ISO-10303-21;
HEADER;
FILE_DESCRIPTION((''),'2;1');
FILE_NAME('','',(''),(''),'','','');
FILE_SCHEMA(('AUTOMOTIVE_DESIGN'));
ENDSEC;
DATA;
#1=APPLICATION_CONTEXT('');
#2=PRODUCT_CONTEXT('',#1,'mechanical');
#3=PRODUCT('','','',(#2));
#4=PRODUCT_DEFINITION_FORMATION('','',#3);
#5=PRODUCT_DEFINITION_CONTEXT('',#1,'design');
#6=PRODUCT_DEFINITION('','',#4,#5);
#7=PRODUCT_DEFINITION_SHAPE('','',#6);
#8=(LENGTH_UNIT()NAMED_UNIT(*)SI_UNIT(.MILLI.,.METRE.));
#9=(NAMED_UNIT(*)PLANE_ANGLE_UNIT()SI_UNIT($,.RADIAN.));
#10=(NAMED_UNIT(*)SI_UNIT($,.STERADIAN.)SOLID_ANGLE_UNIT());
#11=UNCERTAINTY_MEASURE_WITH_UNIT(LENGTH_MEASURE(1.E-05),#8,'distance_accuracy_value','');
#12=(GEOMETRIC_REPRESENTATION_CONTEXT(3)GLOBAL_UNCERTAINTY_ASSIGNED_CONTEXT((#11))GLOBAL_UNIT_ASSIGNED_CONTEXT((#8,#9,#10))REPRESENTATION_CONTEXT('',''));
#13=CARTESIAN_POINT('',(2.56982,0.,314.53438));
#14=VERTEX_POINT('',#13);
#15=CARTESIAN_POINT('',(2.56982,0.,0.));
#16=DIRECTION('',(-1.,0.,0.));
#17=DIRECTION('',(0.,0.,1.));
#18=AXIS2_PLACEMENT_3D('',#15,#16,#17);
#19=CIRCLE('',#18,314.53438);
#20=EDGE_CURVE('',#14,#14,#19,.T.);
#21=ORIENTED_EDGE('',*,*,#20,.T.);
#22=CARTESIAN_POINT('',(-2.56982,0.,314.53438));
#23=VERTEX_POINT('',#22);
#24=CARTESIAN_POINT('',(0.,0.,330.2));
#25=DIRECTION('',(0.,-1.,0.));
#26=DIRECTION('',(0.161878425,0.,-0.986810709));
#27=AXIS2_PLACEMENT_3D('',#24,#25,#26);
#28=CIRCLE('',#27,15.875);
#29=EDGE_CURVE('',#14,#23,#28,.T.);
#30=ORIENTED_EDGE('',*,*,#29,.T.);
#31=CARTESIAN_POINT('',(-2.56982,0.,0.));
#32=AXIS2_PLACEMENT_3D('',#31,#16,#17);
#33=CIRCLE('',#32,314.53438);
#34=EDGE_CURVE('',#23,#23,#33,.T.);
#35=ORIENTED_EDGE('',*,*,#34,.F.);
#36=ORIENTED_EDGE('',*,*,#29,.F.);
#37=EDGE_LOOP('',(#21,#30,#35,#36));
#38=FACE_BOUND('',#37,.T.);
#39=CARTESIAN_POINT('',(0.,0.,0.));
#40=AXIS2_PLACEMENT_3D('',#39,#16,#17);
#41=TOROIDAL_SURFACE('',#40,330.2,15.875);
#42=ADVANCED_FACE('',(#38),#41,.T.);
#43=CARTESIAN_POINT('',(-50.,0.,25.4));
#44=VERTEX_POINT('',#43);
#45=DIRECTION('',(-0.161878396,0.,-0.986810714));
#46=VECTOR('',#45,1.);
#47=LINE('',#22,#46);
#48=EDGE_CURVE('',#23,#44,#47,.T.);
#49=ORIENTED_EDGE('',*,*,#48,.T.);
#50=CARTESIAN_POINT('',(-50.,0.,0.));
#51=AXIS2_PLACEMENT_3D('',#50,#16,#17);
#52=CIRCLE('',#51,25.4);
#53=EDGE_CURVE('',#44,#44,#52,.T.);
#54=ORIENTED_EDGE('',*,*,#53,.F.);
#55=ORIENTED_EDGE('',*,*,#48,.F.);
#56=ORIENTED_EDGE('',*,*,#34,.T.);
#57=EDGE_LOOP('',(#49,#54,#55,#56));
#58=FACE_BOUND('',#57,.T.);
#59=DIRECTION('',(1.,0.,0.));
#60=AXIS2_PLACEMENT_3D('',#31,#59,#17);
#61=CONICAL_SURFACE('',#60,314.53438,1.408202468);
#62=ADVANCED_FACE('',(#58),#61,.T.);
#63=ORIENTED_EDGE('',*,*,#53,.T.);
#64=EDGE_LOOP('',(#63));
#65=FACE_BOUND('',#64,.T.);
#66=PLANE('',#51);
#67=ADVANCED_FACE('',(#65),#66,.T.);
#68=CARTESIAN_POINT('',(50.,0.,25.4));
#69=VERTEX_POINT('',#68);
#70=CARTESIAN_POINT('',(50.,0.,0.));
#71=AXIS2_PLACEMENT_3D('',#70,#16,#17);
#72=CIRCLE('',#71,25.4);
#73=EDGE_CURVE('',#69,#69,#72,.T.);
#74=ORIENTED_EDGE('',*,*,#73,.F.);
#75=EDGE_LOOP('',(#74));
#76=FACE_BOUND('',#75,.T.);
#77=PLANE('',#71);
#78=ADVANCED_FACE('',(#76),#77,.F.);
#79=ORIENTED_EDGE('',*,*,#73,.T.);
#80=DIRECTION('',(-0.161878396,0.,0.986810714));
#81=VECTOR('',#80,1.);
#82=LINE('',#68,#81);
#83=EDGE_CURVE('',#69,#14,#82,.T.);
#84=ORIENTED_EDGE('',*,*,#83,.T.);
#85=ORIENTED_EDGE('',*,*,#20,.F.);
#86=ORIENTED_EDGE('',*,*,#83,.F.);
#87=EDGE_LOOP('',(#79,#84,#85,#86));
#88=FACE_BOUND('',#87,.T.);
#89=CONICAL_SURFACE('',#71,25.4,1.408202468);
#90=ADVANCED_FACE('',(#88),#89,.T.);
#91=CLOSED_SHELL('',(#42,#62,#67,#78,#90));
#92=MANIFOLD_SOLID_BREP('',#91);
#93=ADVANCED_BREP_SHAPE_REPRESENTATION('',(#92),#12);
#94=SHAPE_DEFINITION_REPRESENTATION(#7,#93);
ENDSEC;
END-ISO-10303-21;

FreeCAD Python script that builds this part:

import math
import FreeCAD as App
import Part
import Sketcher

V = App.Vector
Q = App.Units.Quantity

doc = App.newDocument("Part")
params = doc.addObject("Spreadsheet::Sheet", "Params")
for row, (alias, value) in enumerate([
    ("sketch1_height", "1 in"),
    ("sketch1_radius", "0.625 in"),
    ("revolution_angle", "360 deg"),
], start=1):
    params.set(f"A{row}", alias)
    params.set(f"B{row}", "=" + value)
    params.setAlias(f"B{row}", alias)

body = doc.addObject("PartDesign::Body", "Body")

# Sketch on XZ plane
sketch1 = body.newObject("Sketcher::SketchObject", "Sketch")
sketch1.AttachmentSupport = (doc.getObject("XZ_Plane"), [""])
sketch1.MapMode = "FlatFace"
sketch1.addGeometry([
    Part.LineSegment(V(-50, 0, 0), V(50, 0, 0)),  # 0
    Part.LineSegment(V(50, 0, 0), V(50, 25, 0)),  # 1
    Part.LineSegment(V(50, 25, 0), V(3, 315, 0)),  # 2
    Part.ArcOfCircle(Part.Circle(V(0, 330, 0), V(0, 0, 1), 16), math.radians(-81), math.radians(261)),  # 3
    Part.LineSegment(V(-3, 315, 0), V(-50, 25, 0)),  # 4
    Part.LineSegment(V(-50, 25, 0), V(-50, 0, 0)),  # 5
], False)
sketch1.addConstraint([
    Sketcher.Constraint("Coincident", 0, 2, 1, 1),
    Sketcher.Constraint("Coincident", 1, 2, 2, 1),
    Sketcher.Constraint("Coincident", 2, 2, 3, 1),
    Sketcher.Constraint("Coincident", 3, 2, 4, 1),
    Sketcher.Constraint("Coincident", 4, 2, 5, 1),
    Sketcher.Constraint("Coincident", 5, 2, 0, 1),
    Sketcher.Constraint("Horizontal", 0),
    Sketcher.Constraint("Vertical", 1),
    Sketcher.Constraint("Vertical", 5),
    Sketcher.Constraint("Symmetric", 0, 2, 5, 2, -1, 1),
    Sketcher.Constraint("Symmetric", 2, 2, 3, 2, -2),
    Sketcher.Constraint("Horizontal", 1, 2, 4, 2),
    Sketcher.Constraint("DistanceY", 1, 1, 1, 2, Q("1 in")),
    Sketcher.Constraint("DistanceY", -1, 1, 3, 3, Q("13 in")),
    Sketcher.Constraint("Radius", 3, Q("0.625 in")),
    Sketcher.Constraint("DistanceX", 0, 1, 0, 2, Q("100 mm")),
    Sketcher.Constraint("DistanceX", -1, 1, 2, 2, Q("2.56982 mm")),
])
sketch1.setExpression("Constraints[12]", "Params.sketch1_height")
sketch1.setExpression("Constraints[14]", "Params.sketch1_radius")
revolution = body.newObject("PartDesign::Revolution", "Revolution")
revolution.Profile = sketch1
revolution.ReferenceAxis = (sketch1, ["H_Axis"])
revolution.setExpression("Angle", "Params.revolution_angle")

doc.recompute()
